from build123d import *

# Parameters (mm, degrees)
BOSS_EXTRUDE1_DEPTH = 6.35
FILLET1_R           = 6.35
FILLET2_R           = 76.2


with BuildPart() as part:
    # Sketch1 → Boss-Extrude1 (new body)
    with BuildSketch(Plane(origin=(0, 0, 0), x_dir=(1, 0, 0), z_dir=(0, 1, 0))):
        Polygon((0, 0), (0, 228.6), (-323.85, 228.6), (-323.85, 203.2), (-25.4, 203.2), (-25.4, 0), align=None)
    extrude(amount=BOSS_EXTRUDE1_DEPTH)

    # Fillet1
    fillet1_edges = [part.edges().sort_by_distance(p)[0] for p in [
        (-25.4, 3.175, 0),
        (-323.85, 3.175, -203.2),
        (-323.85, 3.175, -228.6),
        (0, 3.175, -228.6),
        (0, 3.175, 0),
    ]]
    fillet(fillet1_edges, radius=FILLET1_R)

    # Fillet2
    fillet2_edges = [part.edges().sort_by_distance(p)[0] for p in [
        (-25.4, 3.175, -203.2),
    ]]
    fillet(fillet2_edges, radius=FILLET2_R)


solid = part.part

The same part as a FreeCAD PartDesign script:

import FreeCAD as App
import Part
import Sketcher
from FreeCAD import Vector
Q = App.Units.Quantity


def edges_at(feature, points):
    """Names of the edges that pass closest to the given points."""
    edges = feature.Shape.Edges
    near = lambda p: min(range(len(edges)), key=lambda i: edges[i].distToShape(Part.Vertex(*p))[0])
    return sorted({f"Edge{near(p) + 1}" for p in points})


def add_polygon(sketch, points):
    """Adds a closed chain of lines whose ends are joined by coincident constraints."""
    first, n = sketch.GeometryCount, len(points)
    for a, b in zip(points, points[1:] + points[:1]):
        sketch.addGeometry(Part.LineSegment(App.Vector(*a, 0), App.Vector(*b, 0)), False)
    for i in range(n):
        sketch.addConstraint(Sketcher.Constraint("Coincident", first + i, 2, first + (i + 1) % n, 1))

doc = App.newDocument("Part")
body = doc.addObject("PartDesign::Body", "Body")

# Sketch on XZ plane
sketch1 = body.newObject("Sketcher::SketchObject", "Sketch")
sketch1.AttachmentSupport = (doc.getObject("XZ_Plane"), [""])
sketch1.MapMode = "FlatFace"
add_polygon(sketch1, [(0, 0), (0, -228.6), (-323.85, -228.6), (-323.85, -203.2), (-25.4, -203.2), (-25.4, 0)])  # lines 0-5
sketch1.addConstraint(Sketcher.Constraint("Vertical", 0))
sketch1.addConstraint(Sketcher.Constraint("Horizontal", 1))
sketch1.addConstraint(Sketcher.Constraint("Vertical", 2))
sketch1.addConstraint(Sketcher.Constraint("Horizontal", 3))
sketch1.addConstraint(Sketcher.Constraint("Vertical", 4))
sketch1.addConstraint(Sketcher.Constraint("Horizontal", 5))
sketch1.addConstraint(Sketcher.Constraint("Coincident", 5, 2, -1, 1))
sketch1.addConstraint(Sketcher.Constraint("Equal", 5, 2))
sketch1.addConstraint(Sketcher.Constraint("DistanceX", 5, 1, 5, 2, Q("1 in")))
sketch1.addConstraint(Sketcher.Constraint("DistanceY", 0, 2, 0, 1, Q("9 in")))
sketch1.addConstraint(Sketcher.Constraint("DistanceX", 1, 2, 1, 1, Q("12.75 in")))
pad1 = body.newObject("PartDesign::Pad", "Pad")
pad1.Profile = sketch1
pad1.Length = Q("0.25 in")
pad1.Reversed = True
doc.recompute()

fillet = body.newObject("PartDesign::Fillet", "Fillet")
fillet.Base = (pad1, edges_at(pad1, [
    (-25.4, 3.175, 0),
    (-323.85, 3.175, -203.2),
    (-323.85, 3.175, -228.6),
    (0, 3.175, -228.6),
    (0, 3.175, 0),
]))
fillet.Radius = Q("0.25 in")
doc.recompute()

fillet2 = body.newObject("PartDesign::Fillet", "Fillet001")
fillet2.Base = (fillet, edges_at(fillet, [(-25.4, 3.175, -203.2)]))
fillet2.Radius = Q("3 in")

doc.recompute()
